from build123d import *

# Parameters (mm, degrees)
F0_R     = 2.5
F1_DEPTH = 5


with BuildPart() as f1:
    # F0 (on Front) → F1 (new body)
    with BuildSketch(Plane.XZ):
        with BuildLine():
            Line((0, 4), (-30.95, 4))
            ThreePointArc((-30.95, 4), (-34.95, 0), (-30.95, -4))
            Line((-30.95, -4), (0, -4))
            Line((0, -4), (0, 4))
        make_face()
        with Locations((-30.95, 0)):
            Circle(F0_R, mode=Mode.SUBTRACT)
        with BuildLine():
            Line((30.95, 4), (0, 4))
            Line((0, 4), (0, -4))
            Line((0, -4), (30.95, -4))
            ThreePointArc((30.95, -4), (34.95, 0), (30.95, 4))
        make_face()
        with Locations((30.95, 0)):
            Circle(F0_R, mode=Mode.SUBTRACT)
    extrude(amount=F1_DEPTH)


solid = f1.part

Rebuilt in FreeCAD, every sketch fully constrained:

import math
import FreeCAD as App
import Part
import Sketcher

V = App.Vector

doc = App.newDocument("Part")
body = doc.addObject("PartDesign::Body", "Body")

# Sketch on XZ plane
sketch1 = body.newObject("Sketcher::SketchObject", "Sketch")
sketch1.AttachmentSupport = (doc.getObject("XZ_Plane"), [""])
sketch1.MapMode = "FlatFace"
sketch1.addGeometry([
    Part.ArcOfCircle(Part.Circle(V(-30.9, 0, 0), V(0, 0, 1), 4), math.radians(90), math.radians(270)),  # 0
    Part.LineSegment(V(-30.9, -4, 0), V(30.9, -4, 0)),  # 1
    Part.ArcOfCircle(Part.Circle(V(30.9, 0, 0), V(0, 0, 1), 4), math.radians(-90), math.radians(90)),  # 2
    Part.LineSegment(V(30.9, 4, 0), V(-30.9, 4, 0)),  # 3
    Part.Circle(V(-30.9, 0, 0), V(0, 0, 1), 2.5),  # 4
    Part.Circle(V(30.9, 0, 0), V(0, 0, 1), 2.5),  # 5
], False)
sketch1.addConstraint([
    Sketcher.Constraint("Tangent", 0, 2, 1, 1),
    Sketcher.Constraint("Tangent", 1, 2, 2, 1),
    Sketcher.Constraint("Tangent", 2, 2, 3, 1),
    Sketcher.Constraint("Tangent", 3, 2, 0, 1),
    Sketcher.Constraint("Horizontal", 1),
    Sketcher.Constraint("Horizontal", 3),
    Sketcher.Constraint("Coincident", 4, 3, 0, 3),
    Sketcher.Constraint("Coincident", 5, 3, 2, 3),
    Sketcher.Constraint("Equal", 4, 5),
    Sketcher.Constraint("Symmetric", 0, 3, 2, 3, -1, 1),
    Sketcher.Constraint("Diameter", 4, 5.0),
    Sketcher.Constraint("Radius", 0, 4.0),
    Sketcher.Constraint("DistanceX", 1, 1, 1, 2, 61.9),
])
pad1 = body.newObject("PartDesign::Pad", "Pad")
pad1.Profile = sketch1
pad1.Length = 5

doc.recompute()
